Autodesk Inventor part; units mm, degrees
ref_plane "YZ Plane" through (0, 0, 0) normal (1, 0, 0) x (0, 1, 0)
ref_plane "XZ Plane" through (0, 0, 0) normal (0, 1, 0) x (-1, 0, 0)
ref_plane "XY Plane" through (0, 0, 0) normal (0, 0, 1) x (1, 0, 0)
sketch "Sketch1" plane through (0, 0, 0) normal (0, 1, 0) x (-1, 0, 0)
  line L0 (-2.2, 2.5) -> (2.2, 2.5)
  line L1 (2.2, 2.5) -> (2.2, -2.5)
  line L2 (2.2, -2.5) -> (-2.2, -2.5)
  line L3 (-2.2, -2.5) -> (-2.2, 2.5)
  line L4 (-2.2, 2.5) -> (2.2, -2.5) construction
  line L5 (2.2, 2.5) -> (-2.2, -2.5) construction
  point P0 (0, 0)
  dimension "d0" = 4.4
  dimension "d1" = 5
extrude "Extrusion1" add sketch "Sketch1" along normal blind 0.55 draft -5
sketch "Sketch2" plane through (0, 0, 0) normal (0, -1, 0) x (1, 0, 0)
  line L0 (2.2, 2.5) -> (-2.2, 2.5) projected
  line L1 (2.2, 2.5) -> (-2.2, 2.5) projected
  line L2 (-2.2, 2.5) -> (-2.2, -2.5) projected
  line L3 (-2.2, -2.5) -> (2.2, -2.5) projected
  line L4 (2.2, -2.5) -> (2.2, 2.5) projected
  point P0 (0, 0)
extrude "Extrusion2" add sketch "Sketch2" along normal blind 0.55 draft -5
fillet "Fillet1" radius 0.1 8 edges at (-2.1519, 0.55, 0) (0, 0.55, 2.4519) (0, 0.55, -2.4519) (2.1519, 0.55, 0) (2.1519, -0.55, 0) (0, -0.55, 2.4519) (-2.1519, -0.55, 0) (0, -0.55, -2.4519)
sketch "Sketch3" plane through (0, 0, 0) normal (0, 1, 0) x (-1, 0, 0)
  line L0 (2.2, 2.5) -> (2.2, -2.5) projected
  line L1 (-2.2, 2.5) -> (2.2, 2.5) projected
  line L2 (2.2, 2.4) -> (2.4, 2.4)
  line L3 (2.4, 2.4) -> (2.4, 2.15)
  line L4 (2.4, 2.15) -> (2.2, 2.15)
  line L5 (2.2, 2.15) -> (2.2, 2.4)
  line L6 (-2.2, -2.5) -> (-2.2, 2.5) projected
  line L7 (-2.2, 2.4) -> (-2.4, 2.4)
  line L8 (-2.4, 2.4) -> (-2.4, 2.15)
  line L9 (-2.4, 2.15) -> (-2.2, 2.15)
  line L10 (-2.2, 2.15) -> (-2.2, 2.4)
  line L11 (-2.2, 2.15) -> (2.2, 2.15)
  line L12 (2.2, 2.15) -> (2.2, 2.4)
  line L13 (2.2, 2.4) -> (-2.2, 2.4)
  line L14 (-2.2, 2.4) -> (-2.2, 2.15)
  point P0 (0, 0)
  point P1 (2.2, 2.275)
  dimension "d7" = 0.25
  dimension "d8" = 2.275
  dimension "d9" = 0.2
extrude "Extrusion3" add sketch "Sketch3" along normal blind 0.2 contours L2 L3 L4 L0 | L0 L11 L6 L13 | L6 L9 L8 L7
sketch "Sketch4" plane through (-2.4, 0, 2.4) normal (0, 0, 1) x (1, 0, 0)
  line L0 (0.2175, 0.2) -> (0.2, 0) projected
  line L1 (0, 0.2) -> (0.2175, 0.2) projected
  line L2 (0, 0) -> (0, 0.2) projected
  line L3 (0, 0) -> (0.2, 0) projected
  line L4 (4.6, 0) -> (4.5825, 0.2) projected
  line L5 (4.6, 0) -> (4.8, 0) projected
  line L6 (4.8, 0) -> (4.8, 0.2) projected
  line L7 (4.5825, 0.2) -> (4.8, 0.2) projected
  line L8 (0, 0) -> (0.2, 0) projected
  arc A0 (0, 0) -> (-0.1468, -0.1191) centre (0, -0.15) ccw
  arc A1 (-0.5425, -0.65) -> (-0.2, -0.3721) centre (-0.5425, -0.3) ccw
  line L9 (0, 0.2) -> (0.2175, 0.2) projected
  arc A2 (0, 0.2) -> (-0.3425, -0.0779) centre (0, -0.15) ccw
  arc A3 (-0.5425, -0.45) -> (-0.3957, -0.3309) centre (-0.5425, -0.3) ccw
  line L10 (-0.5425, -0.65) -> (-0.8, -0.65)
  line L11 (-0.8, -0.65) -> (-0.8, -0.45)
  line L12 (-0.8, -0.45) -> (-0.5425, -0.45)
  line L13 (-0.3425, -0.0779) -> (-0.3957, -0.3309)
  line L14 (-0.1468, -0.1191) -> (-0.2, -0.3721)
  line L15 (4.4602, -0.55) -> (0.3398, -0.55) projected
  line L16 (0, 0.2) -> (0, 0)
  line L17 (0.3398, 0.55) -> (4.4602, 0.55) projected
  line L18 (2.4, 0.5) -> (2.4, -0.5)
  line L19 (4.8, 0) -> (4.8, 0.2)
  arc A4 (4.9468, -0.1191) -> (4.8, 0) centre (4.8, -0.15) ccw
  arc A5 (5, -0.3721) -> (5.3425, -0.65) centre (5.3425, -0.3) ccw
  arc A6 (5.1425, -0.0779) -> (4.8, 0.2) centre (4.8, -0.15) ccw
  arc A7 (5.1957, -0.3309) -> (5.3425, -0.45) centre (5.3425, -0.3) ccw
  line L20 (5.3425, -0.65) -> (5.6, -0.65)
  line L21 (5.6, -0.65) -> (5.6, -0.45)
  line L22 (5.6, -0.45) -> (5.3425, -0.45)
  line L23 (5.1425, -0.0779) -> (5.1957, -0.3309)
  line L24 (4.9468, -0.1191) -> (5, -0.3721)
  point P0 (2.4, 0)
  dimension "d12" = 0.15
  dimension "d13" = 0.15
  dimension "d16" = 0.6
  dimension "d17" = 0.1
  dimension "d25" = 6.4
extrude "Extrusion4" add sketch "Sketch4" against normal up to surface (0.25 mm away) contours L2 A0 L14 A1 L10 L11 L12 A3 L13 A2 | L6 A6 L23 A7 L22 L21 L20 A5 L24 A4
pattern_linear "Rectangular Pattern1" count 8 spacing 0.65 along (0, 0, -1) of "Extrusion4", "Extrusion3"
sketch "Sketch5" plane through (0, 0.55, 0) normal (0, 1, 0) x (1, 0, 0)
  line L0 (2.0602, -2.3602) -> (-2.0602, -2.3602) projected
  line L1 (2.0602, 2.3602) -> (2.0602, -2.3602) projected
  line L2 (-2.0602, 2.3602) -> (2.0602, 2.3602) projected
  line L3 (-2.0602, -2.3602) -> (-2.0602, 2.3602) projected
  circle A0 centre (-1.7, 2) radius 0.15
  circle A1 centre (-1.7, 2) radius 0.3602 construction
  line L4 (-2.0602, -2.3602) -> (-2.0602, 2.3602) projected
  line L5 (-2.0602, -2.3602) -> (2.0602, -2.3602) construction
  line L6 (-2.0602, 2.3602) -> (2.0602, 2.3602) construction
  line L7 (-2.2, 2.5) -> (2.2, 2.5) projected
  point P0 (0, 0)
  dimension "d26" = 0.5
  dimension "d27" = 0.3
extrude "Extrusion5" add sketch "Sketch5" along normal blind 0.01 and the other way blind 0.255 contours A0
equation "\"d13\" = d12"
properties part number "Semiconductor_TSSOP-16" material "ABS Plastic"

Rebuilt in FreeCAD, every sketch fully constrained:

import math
import FreeCAD as App
import Part
import Sketcher
Q = App.Units.Quantity


def edges_at(feature, points):
    """Names of the edges that pass closest to the given points."""
    edges = feature.Shape.Edges
    near = lambda p: min(range(len(edges)), key=lambda i: edges[i].distToShape(Part.Vertex(*p))[0])
    return sorted({f"Edge{near(p) + 1}" for p in points})

doc = App.newDocument("Part")
body = doc.addObject("PartDesign::Body", "Body")

# Sketch on XZ plane
sketch1 = doc.addObject("Sketcher::SketchObject", "Sketch")
body.addObject(sketch1)
sketch1.AttachmentSupport = (doc.XZ_Plane, [""])
sketch1.MapMode = "FlatFace"
sketch1.addGeometry(Part.LineSegment(App.Vector(-2.2, 2.5, 0), App.Vector(2.2, 2.5, 0)), False)
sketch1.addGeometry(Part.LineSegment(App.Vector(2.2, 2.5, 0), App.Vector(2.2, -2.5, 0)), False)
sketch1.addGeometry(Part.LineSegment(App.Vector(2.2, -2.5, 0), App.Vector(-2.2, -2.5, 0)), False)
sketch1.addGeometry(Part.LineSegment(App.Vector(-2.2, -2.5, 0), App.Vector(-2.2, 2.5, 0)), False)
sketch1.addConstraint(Sketcher.Constraint("Coincident", 0, 2, 1, 1))
sketch1.addConstraint(Sketcher.Constraint("Coincident", 1, 2, 2, 1))
sketch1.addConstraint(Sketcher.Constraint("Coincident", 2, 2, 3, 1))
sketch1.addConstraint(Sketcher.Constraint("Coincident", 3, 2, 0, 1))
sketch1.addConstraint(Sketcher.Constraint("Horizontal", 0))
sketch1.addConstraint(Sketcher.Constraint("Vertical", 1))
sketch1.addConstraint(Sketcher.Constraint("Horizontal", 2))
sketch1.addConstraint(Sketcher.Constraint("Vertical", 3))
sketch1.addConstraint(Sketcher.Constraint("Symmetric", 0, 2, 2, 2, -1, 1))
sketch1.addConstraint(Sketcher.Constraint("DistanceY", 1, 2, 1, 1, Q("5 mm")))
sketch1.addConstraint(Sketcher.Constraint("DistanceX", 0, 1, 0, 2, Q("4.4 mm")))
pad1 = doc.addObject("PartDesign::Pad", "Pad")
body.addObject(pad1)
pad1.Profile = sketch1
pad1.Length = 0.55
pad1.Reversed = True
pad1.TaperAngle = -5

# Sketch on XZ plane
sketch2 = doc.addObject("Sketcher::SketchObject", "Sketch001")
body.addObject(sketch2)
sketch2.AttachmentSupport = (doc.XZ_Plane, [""])
sketch2.MapMode = "FlatFace"
sketch2.addGeometry(Part.LineSegment(App.Vector(2.2, -2.5, 0), App.Vector(2.2, 2.5, 0)), False)
sketch2.addGeometry(Part.LineSegment(App.Vector(2.2, 2.5, 0), App.Vector(-2.2, 2.5, 0)), False)
sketch2.addGeometry(Part.LineSegment(App.Vector(-2.2, 2.5, 0), App.Vector(-2.2, -2.5, 0)), False)
sketch2.addGeometry(Part.LineSegment(App.Vector(-2.2, -2.5, 0), App.Vector(2.2, -2.5, 0)), False)
sketch2.addConstraint(Sketcher.Constraint("Coincident", 0, 2, 1, 1))
sketch2.addConstraint(Sketcher.Constraint("Coincident", 1, 2, 2, 1))
sketch2.addConstraint(Sketcher.Constraint("Coincident", 2, 2, 3, 1))
sketch2.addConstraint(Sketcher.Constraint("Coincident", 3, 2, 0, 1))
sketch2.addConstraint(Sketcher.Constraint("Vertical", 0))
sketch2.addConstraint(Sketcher.Constraint("Horizontal", 1))
sketch2.addConstraint(Sketcher.Constraint("Vertical", 2))
sketch2.addConstraint(Sketcher.Constraint("Horizontal", 3))
sketch2.addConstraint(Sketcher.Constraint("Symmetric", 0, 2, 2, 2, -1, 1))
sketch2.addConstraint(Sketcher.Constraint("DistanceY", 0, 1, 0, 2, Q("5 mm")))
sketch2.addConstraint(Sketcher.Constraint("DistanceX", 1, 2, 1, 1, Q("4.4 mm")))
pad2 = doc.addObject("PartDesign::Pad", "Pad001")
body.addObject(pad2)
pad2.Profile = sketch2
pad2.Length = 0.55
pad2.TaperAngle = -5
doc.recompute()

fillet = doc.addObject("PartDesign::Fillet", "Fillet")
body.addObject(fillet)
fillet.Base = (pad2, edges_at(pad2, [
    (-2.152, 0.55, 0),
    (0, 0.55, 2.452),
    (0, 0.55, -2.452),
    (2.152, 0.55, 0),
    (2.152, -0.55, 0),
    (0, -0.55, 2.452),
    (-2.152, -0.55, 0),
    (0, -0.55, -2.452),
]))
fillet.Radius = 0.1

# Sketch on XZ plane
sketch3 = doc.addObject("Sketcher::SketchObject", "Sketch002")
body.addObject(sketch3)
sketch3.AttachmentSupport = (doc.XZ_Plane, [""])
sketch3.MapMode = "FlatFace"
sketch3.addGeometry(Part.LineSegment(App.Vector(-2.4, 2.4, 0), App.Vector(2.4, 2.4, 0)), False)
sketch3.addGeometry(Part.LineSegment(App.Vector(2.4, 2.4, 0), App.Vector(2.4, 2.15, 0)), False)
sketch3.addGeometry(Part.LineSegment(App.Vector(2.4, 2.15, 0), App.Vector(-2.4, 2.15, 0)), False)
sketch3.addGeometry(Part.LineSegment(App.Vector(-2.4, 2.15, 0), App.Vector(-2.4, 2.4, 0)), False)
sketch3.addConstraint(Sketcher.Constraint("Coincident", 0, 2, 1, 1))
sketch3.addConstraint(Sketcher.Constraint("Coincident", 1, 2, 2, 1))
sketch3.addConstraint(Sketcher.Constraint("Coincident", 2, 2, 3, 1))
sketch3.addConstraint(Sketcher.Constraint("Coincident", 3, 2, 0, 1))
sketch3.addConstraint(Sketcher.Constraint("Horizontal", 0))
sketch3.addConstraint(Sketcher.Constraint("Vertical", 1))
sketch3.addConstraint(Sketcher.Constraint("Horizontal", 2))
sketch3.addConstraint(Sketcher.Constraint("Vertical", 3))
sketch3.addConstraint(Sketcher.Constraint("DistanceY", 1, 2, 1, 1, Q("0.25 mm")))
sketch3.addConstraint(Sketcher.Constraint("DistanceX", 0, 1, 0, 2, Q("4.8 mm")))
sketch3.addConstraint(Sketcher.Constraint("DistanceX", -1, 1, 0, 2, Q("2.4 mm")))
sketch3.addConstraint(Sketcher.Constraint("DistanceY", -1, 1, 0, 2, Q("2.4 mm")))
pad3 = doc.addObject("PartDesign::Pad", "Pad002")
body.addObject(pad3)
pad3.Profile = sketch3
pad3.Length = 0.2
pad3.Reversed = True

# Sketch on XY plane
sketch4 = doc.addObject("Sketcher::SketchObject", "Sketch003")
body.addObject(sketch4)
sketch4.AttachmentSupport = (doc.XY_Plane, [""])
sketch4.MapMode = "FlatFace"
sketch4.AttachmentOffset = App.Placement(App.Vector(0, 0, 2.4), App.Rotation())
sketch4.addGeometry(Part.LineSegment(App.Vector(-2.4, 0, 0), App.Vector(-2.4, 0.2, 0)), False)
sketch4.addGeometry(Part.ArcOfCircle(Part.Circle(App.Vector(-2.4, -0.15, 0), App.Vector(0, 0, 1), 0.35), math.radians(90), math.radians(168.112185)), False)
sketch4.addGeometry(Part.LineSegment(App.Vector(-2.7425, -0.0779, 0), App.Vector(-2.7957, -0.3309, 0)), False)
sketch4.addGeometry(Part.ArcOfCircle(Part.Circle(App.Vector(-2.9425, -0.3, 0), App.Vector(0, 0, 1), 0.15), math.radians(-90), math.radians(-11.886691)), False)
sketch4.addGeometry(Part.LineSegment(App.Vector(-2.9425, -0.45, 0), App.Vector(-3.2, -0.45, 0)), False)
sketch4.addGeometry(Part.LineSegment(App.Vector(-3.2, -0.45, 0), App.Vector(-3.2, -0.65, 0)), False)
sketch4.addGeometry(Part.LineSegment(App.Vector(-3.2, -0.65, 0), App.Vector(-2.9425, -0.65, 0)), False)
sketch4.addGeometry(Part.ArcOfCircle(Part.Circle(App.Vector(-2.9425, -0.3, 0), App.Vector(0, 0, 1), 0.35), math.radians(-90), math.radians(-11.887815)), False)
sketch4.addGeometry(Part.LineSegment(App.Vector(-2.6, -0.3721, 0), App.Vector(-2.5468, -0.1191, 0)), False)
sketch4.addGeometry(Part.ArcOfCircle(Part.Circle(App.Vector(-2.4, -0.15, 0), App.Vector(0, 0, 1), 0.15), math.radians(90), math.radians(168.113309)), False)
sketch4.addGeometry(Part.LineSegment(App.Vector(2.4, 0.2, 0), App.Vector(2.4, 0, 0)), False)
sketch4.addGeometry(Part.ArcOfCircle(Part.Circle(App.Vector(2.4, -0.15, 0), App.Vector(0, 0, 1), 0.150017), math.radians(11.886691), math.radians(90)), False)
sketch4.addGeometry(Part.LineSegment(App.Vector(2.5468, -0.1191, 0), App.Vector(2.6, -0.3721, 0)), False)
sketch4.addGeometry(Part.ArcOfCircle(Part.Circle(App.Vector(2.9425, -0.3, 0), App.Vector(0, 0, 1), 0.350007), math.radians(-168.112185), math.radians(-90)), False)
sketch4.addGeometry(Part.LineSegment(App.Vector(2.9425, -0.65, 0), App.Vector(3.2, -0.65, 0)), False)
sketch4.addGeometry(Part.LineSegment(App.Vector(3.2, -0.65, 0), App.Vector(3.2, -0.45, 0)), False)
sketch4.addGeometry(Part.LineSegment(App.Vector(3.2, -0.45, 0), App.Vector(2.9425, -0.45, 0)), False)
sketch4.addGeometry(Part.ArcOfCircle(Part.Circle(App.Vector(2.9425, -0.3, 0), App.Vector(0, 0, 1), 0.150017), math.radians(-168.113309), math.radians(-90)), False)
sketch4.addGeometry(Part.LineSegment(App.Vector(2.7957, -0.3309, 0), App.Vector(2.7425, -0.0779, 0)), False)
sketch4.addGeometry(Part.ArcOfCircle(Part.Circle(App.Vector(2.4, -0.15, 0), App.Vector(0, 0, 1), 0.350007), math.radians(11.887815), math.radians(90)), False)
sketch4.addConstraint(Sketcher.Constraint("Coincident", 0, 2, 1, 1))
sketch4.addConstraint(Sketcher.Constraint("Tangent", 1, 2, 2, 1))
sketch4.addConstraint(Sketcher.Constraint("Tangent", 2, 2, 3, 2))
sketch4.addConstraint(Sketcher.Constraint("Tangent", 3, 1, 4, 1))
sketch4.addConstraint(Sketcher.Constraint("Coincident", 4, 2, 5, 1))
sketch4.addConstraint(Sketcher.Constraint("Coincident", 5, 2, 6, 1))
sketch4.addConstraint(Sketcher.Constraint("Tangent", 6, 2, 7, 1))
sketch4.addConstraint(Sketcher.Constraint("Tangent", 7, 2, 8, 1))
sketch4.addConstraint(Sketcher.Constraint("Tangent", 8, 2, 9, 2))
sketch4.addConstraint(Sketcher.Constraint("Coincident", 9, 1, 0, 1))
sketch4.addConstraint(Sketcher.Constraint("Coincident", 10, 2, 11, 2))
sketch4.addConstraint(Sketcher.Constraint("Tangent", 11, 1, 12, 1))
sketch4.addConstraint(Sketcher.Constraint("Tangent", 12, 2, 13, 1))
sketch4.addConstraint(Sketcher.Constraint("Tangent", 13, 2, 14, 1))
sketch4.addConstraint(Sketcher.Constraint("Coincident", 14, 2, 15, 1))
sketch4.addConstraint(Sketcher.Constraint("Coincident", 15, 2, 16, 1))
sketch4.addConstraint(Sketcher.Constraint("Tangent", 16, 2, 17, 2))
sketch4.addConstraint(Sketcher.Constraint("Tangent", 17, 1, 18, 1))
sketch4.addConstraint(Sketcher.Constraint("Tangent", 18, 2, 19, 1))
sketch4.addConstraint(Sketcher.Constraint("Coincident", 19, 2, 10, 1))
sketch4.addConstraint(Sketcher.Constraint("Vertical", 0))
sketch4.addConstraint(Sketcher.Constraint("Horizontal", 4))
sketch4.addConstraint(Sketcher.Constraint("Vertical", 5))
sketch4.addConstraint(Sketcher.Constraint("Horizontal", 6))
sketch4.addConstraint(Sketcher.Constraint("Vertical", 10))
sketch4.addConstraint(Sketcher.Constraint("Horizontal", 14))
sketch4.addConstraint(Sketcher.Constraint("Vertical", 15))
sketch4.addConstraint(Sketcher.Constraint("Horizontal", 16))
sketch4.addConstraint(Sketcher.Constraint("Coincident", 7, 3, 3, 3))
sketch4.addConstraint(Sketcher.Constraint("Coincident", 9, 3, 1, 3))
sketch4.addConstraint(Sketcher.Constraint("Coincident", 17, 3, 13, 3))
sketch4.addConstraint(Sketcher.Constraint("Coincident", 19, 3, 11, 3))
sketch4.addConstraint(Sketcher.Constraint("Equal", 1, 7))
sketch4.addConstraint(Sketcher.Constraint("Equal", 3, 9))
sketch4.addConstraint(Sketcher.Constraint("Equal", 9, 11))
sketch4.addConstraint(Sketcher.Constraint("Equal", 7, 13))
sketch4.addConstraint(Sketcher.Constraint("Equal", 11, 17))
sketch4.addConstraint(Sketcher.Constraint("Equal", 13, 19))
sketch4.addConstraint(Sketcher.Constraint("Symmetric", 9, 1, 10, 2, -1, 1))
sketch4.addConstraint(Sketcher.Constraint("Symmetric", 1, 3, 11, 3, -2))
sketch4.addConstraint(Sketcher.Constraint("Symmetric", 3, 3, 13, 3, -2))
sketch4.addConstraint(Sketcher.Constraint("Vertical", 9, 3, 0, 2))
sketch4.addConstraint(Sketcher.Constraint("Equal", 6, 14))
sketch4.addConstraint(Sketcher.Constraint("Radius", 3, Q("0.15 mm")))
sketch4.addConstraint(Sketcher.Constraint("DistanceX", 12, 2, 14, 2, Q("0.6 mm")))
sketch4.addConstraint(Sketcher.Constraint("Radius", 1, Q("0.35 mm")))
sketch4.addConstraint(Sketcher.Constraint("DistanceY", 3, 3, 1, 3, Q("0.15 mm")))
sketch4.addConstraint(Sketcher.Constraint("DistanceX", 1, 3, -1, 1, Q("2.4 mm")))
sketch4.addConstraint(Sketcher.Constraint("DistanceX", 4, 2, -1, 1, Q("3.2 mm")))
pad4 = doc.addObject("PartDesign::Pad", "Pad003")
body.addObject(pad4)
pad4.Profile = sketch4
pad4.Length = 0.25
pad4.Reversed = True
doc.recompute()

linearpattern = doc.addObject("PartDesign::LinearPattern", "LinearPattern")
body.addObject(linearpattern)
linearpattern.Originals = [pad4, pad3]
linearpattern.Direction = (doc.Z_Axis, [""])
linearpattern.Mode = "offset"
linearpattern.Offset = 0.65
linearpattern.Occurrences = 8
linearpattern.Reversed = True
body.Tip = linearpattern

# Sketch on XZ plane
sketch5 = doc.addObject("Sketcher::SketchObject", "Sketch004")
body.addObject(sketch5)
sketch5.AttachmentSupport = (doc.XZ_Plane, [""])
sketch5.MapMode = "FlatFace"
sketch5.AttachmentOffset = App.Placement(App.Vector(0, 0, -0.55), App.Rotation())
sketch5.addGeometry(Part.Circle(App.Vector(-1.7, -2, 0), App.Vector(0, 0, 1), 0.15), False)
sketch5.addConstraint(Sketcher.Constraint("Diameter", 0, Q("0.3 mm")))
sketch5.addConstraint(Sketcher.Constraint("DistanceY", 0, 3, -1, 1, Q("2 mm")))
sketch5.addConstraint(Sketcher.Constraint("DistanceX", 0, 3, -1, 1, Q("1.7 mm")))
pad5 = doc.addObject("PartDesign::Pad", "Pad004")
body.addObject(pad5)
pad5.Profile = sketch5
pad5.Type = "TwoLengths"
pad5.Length = 0.01
pad5.Length2 = 0.255
pad5.Reversed = True

doc.recompute()
